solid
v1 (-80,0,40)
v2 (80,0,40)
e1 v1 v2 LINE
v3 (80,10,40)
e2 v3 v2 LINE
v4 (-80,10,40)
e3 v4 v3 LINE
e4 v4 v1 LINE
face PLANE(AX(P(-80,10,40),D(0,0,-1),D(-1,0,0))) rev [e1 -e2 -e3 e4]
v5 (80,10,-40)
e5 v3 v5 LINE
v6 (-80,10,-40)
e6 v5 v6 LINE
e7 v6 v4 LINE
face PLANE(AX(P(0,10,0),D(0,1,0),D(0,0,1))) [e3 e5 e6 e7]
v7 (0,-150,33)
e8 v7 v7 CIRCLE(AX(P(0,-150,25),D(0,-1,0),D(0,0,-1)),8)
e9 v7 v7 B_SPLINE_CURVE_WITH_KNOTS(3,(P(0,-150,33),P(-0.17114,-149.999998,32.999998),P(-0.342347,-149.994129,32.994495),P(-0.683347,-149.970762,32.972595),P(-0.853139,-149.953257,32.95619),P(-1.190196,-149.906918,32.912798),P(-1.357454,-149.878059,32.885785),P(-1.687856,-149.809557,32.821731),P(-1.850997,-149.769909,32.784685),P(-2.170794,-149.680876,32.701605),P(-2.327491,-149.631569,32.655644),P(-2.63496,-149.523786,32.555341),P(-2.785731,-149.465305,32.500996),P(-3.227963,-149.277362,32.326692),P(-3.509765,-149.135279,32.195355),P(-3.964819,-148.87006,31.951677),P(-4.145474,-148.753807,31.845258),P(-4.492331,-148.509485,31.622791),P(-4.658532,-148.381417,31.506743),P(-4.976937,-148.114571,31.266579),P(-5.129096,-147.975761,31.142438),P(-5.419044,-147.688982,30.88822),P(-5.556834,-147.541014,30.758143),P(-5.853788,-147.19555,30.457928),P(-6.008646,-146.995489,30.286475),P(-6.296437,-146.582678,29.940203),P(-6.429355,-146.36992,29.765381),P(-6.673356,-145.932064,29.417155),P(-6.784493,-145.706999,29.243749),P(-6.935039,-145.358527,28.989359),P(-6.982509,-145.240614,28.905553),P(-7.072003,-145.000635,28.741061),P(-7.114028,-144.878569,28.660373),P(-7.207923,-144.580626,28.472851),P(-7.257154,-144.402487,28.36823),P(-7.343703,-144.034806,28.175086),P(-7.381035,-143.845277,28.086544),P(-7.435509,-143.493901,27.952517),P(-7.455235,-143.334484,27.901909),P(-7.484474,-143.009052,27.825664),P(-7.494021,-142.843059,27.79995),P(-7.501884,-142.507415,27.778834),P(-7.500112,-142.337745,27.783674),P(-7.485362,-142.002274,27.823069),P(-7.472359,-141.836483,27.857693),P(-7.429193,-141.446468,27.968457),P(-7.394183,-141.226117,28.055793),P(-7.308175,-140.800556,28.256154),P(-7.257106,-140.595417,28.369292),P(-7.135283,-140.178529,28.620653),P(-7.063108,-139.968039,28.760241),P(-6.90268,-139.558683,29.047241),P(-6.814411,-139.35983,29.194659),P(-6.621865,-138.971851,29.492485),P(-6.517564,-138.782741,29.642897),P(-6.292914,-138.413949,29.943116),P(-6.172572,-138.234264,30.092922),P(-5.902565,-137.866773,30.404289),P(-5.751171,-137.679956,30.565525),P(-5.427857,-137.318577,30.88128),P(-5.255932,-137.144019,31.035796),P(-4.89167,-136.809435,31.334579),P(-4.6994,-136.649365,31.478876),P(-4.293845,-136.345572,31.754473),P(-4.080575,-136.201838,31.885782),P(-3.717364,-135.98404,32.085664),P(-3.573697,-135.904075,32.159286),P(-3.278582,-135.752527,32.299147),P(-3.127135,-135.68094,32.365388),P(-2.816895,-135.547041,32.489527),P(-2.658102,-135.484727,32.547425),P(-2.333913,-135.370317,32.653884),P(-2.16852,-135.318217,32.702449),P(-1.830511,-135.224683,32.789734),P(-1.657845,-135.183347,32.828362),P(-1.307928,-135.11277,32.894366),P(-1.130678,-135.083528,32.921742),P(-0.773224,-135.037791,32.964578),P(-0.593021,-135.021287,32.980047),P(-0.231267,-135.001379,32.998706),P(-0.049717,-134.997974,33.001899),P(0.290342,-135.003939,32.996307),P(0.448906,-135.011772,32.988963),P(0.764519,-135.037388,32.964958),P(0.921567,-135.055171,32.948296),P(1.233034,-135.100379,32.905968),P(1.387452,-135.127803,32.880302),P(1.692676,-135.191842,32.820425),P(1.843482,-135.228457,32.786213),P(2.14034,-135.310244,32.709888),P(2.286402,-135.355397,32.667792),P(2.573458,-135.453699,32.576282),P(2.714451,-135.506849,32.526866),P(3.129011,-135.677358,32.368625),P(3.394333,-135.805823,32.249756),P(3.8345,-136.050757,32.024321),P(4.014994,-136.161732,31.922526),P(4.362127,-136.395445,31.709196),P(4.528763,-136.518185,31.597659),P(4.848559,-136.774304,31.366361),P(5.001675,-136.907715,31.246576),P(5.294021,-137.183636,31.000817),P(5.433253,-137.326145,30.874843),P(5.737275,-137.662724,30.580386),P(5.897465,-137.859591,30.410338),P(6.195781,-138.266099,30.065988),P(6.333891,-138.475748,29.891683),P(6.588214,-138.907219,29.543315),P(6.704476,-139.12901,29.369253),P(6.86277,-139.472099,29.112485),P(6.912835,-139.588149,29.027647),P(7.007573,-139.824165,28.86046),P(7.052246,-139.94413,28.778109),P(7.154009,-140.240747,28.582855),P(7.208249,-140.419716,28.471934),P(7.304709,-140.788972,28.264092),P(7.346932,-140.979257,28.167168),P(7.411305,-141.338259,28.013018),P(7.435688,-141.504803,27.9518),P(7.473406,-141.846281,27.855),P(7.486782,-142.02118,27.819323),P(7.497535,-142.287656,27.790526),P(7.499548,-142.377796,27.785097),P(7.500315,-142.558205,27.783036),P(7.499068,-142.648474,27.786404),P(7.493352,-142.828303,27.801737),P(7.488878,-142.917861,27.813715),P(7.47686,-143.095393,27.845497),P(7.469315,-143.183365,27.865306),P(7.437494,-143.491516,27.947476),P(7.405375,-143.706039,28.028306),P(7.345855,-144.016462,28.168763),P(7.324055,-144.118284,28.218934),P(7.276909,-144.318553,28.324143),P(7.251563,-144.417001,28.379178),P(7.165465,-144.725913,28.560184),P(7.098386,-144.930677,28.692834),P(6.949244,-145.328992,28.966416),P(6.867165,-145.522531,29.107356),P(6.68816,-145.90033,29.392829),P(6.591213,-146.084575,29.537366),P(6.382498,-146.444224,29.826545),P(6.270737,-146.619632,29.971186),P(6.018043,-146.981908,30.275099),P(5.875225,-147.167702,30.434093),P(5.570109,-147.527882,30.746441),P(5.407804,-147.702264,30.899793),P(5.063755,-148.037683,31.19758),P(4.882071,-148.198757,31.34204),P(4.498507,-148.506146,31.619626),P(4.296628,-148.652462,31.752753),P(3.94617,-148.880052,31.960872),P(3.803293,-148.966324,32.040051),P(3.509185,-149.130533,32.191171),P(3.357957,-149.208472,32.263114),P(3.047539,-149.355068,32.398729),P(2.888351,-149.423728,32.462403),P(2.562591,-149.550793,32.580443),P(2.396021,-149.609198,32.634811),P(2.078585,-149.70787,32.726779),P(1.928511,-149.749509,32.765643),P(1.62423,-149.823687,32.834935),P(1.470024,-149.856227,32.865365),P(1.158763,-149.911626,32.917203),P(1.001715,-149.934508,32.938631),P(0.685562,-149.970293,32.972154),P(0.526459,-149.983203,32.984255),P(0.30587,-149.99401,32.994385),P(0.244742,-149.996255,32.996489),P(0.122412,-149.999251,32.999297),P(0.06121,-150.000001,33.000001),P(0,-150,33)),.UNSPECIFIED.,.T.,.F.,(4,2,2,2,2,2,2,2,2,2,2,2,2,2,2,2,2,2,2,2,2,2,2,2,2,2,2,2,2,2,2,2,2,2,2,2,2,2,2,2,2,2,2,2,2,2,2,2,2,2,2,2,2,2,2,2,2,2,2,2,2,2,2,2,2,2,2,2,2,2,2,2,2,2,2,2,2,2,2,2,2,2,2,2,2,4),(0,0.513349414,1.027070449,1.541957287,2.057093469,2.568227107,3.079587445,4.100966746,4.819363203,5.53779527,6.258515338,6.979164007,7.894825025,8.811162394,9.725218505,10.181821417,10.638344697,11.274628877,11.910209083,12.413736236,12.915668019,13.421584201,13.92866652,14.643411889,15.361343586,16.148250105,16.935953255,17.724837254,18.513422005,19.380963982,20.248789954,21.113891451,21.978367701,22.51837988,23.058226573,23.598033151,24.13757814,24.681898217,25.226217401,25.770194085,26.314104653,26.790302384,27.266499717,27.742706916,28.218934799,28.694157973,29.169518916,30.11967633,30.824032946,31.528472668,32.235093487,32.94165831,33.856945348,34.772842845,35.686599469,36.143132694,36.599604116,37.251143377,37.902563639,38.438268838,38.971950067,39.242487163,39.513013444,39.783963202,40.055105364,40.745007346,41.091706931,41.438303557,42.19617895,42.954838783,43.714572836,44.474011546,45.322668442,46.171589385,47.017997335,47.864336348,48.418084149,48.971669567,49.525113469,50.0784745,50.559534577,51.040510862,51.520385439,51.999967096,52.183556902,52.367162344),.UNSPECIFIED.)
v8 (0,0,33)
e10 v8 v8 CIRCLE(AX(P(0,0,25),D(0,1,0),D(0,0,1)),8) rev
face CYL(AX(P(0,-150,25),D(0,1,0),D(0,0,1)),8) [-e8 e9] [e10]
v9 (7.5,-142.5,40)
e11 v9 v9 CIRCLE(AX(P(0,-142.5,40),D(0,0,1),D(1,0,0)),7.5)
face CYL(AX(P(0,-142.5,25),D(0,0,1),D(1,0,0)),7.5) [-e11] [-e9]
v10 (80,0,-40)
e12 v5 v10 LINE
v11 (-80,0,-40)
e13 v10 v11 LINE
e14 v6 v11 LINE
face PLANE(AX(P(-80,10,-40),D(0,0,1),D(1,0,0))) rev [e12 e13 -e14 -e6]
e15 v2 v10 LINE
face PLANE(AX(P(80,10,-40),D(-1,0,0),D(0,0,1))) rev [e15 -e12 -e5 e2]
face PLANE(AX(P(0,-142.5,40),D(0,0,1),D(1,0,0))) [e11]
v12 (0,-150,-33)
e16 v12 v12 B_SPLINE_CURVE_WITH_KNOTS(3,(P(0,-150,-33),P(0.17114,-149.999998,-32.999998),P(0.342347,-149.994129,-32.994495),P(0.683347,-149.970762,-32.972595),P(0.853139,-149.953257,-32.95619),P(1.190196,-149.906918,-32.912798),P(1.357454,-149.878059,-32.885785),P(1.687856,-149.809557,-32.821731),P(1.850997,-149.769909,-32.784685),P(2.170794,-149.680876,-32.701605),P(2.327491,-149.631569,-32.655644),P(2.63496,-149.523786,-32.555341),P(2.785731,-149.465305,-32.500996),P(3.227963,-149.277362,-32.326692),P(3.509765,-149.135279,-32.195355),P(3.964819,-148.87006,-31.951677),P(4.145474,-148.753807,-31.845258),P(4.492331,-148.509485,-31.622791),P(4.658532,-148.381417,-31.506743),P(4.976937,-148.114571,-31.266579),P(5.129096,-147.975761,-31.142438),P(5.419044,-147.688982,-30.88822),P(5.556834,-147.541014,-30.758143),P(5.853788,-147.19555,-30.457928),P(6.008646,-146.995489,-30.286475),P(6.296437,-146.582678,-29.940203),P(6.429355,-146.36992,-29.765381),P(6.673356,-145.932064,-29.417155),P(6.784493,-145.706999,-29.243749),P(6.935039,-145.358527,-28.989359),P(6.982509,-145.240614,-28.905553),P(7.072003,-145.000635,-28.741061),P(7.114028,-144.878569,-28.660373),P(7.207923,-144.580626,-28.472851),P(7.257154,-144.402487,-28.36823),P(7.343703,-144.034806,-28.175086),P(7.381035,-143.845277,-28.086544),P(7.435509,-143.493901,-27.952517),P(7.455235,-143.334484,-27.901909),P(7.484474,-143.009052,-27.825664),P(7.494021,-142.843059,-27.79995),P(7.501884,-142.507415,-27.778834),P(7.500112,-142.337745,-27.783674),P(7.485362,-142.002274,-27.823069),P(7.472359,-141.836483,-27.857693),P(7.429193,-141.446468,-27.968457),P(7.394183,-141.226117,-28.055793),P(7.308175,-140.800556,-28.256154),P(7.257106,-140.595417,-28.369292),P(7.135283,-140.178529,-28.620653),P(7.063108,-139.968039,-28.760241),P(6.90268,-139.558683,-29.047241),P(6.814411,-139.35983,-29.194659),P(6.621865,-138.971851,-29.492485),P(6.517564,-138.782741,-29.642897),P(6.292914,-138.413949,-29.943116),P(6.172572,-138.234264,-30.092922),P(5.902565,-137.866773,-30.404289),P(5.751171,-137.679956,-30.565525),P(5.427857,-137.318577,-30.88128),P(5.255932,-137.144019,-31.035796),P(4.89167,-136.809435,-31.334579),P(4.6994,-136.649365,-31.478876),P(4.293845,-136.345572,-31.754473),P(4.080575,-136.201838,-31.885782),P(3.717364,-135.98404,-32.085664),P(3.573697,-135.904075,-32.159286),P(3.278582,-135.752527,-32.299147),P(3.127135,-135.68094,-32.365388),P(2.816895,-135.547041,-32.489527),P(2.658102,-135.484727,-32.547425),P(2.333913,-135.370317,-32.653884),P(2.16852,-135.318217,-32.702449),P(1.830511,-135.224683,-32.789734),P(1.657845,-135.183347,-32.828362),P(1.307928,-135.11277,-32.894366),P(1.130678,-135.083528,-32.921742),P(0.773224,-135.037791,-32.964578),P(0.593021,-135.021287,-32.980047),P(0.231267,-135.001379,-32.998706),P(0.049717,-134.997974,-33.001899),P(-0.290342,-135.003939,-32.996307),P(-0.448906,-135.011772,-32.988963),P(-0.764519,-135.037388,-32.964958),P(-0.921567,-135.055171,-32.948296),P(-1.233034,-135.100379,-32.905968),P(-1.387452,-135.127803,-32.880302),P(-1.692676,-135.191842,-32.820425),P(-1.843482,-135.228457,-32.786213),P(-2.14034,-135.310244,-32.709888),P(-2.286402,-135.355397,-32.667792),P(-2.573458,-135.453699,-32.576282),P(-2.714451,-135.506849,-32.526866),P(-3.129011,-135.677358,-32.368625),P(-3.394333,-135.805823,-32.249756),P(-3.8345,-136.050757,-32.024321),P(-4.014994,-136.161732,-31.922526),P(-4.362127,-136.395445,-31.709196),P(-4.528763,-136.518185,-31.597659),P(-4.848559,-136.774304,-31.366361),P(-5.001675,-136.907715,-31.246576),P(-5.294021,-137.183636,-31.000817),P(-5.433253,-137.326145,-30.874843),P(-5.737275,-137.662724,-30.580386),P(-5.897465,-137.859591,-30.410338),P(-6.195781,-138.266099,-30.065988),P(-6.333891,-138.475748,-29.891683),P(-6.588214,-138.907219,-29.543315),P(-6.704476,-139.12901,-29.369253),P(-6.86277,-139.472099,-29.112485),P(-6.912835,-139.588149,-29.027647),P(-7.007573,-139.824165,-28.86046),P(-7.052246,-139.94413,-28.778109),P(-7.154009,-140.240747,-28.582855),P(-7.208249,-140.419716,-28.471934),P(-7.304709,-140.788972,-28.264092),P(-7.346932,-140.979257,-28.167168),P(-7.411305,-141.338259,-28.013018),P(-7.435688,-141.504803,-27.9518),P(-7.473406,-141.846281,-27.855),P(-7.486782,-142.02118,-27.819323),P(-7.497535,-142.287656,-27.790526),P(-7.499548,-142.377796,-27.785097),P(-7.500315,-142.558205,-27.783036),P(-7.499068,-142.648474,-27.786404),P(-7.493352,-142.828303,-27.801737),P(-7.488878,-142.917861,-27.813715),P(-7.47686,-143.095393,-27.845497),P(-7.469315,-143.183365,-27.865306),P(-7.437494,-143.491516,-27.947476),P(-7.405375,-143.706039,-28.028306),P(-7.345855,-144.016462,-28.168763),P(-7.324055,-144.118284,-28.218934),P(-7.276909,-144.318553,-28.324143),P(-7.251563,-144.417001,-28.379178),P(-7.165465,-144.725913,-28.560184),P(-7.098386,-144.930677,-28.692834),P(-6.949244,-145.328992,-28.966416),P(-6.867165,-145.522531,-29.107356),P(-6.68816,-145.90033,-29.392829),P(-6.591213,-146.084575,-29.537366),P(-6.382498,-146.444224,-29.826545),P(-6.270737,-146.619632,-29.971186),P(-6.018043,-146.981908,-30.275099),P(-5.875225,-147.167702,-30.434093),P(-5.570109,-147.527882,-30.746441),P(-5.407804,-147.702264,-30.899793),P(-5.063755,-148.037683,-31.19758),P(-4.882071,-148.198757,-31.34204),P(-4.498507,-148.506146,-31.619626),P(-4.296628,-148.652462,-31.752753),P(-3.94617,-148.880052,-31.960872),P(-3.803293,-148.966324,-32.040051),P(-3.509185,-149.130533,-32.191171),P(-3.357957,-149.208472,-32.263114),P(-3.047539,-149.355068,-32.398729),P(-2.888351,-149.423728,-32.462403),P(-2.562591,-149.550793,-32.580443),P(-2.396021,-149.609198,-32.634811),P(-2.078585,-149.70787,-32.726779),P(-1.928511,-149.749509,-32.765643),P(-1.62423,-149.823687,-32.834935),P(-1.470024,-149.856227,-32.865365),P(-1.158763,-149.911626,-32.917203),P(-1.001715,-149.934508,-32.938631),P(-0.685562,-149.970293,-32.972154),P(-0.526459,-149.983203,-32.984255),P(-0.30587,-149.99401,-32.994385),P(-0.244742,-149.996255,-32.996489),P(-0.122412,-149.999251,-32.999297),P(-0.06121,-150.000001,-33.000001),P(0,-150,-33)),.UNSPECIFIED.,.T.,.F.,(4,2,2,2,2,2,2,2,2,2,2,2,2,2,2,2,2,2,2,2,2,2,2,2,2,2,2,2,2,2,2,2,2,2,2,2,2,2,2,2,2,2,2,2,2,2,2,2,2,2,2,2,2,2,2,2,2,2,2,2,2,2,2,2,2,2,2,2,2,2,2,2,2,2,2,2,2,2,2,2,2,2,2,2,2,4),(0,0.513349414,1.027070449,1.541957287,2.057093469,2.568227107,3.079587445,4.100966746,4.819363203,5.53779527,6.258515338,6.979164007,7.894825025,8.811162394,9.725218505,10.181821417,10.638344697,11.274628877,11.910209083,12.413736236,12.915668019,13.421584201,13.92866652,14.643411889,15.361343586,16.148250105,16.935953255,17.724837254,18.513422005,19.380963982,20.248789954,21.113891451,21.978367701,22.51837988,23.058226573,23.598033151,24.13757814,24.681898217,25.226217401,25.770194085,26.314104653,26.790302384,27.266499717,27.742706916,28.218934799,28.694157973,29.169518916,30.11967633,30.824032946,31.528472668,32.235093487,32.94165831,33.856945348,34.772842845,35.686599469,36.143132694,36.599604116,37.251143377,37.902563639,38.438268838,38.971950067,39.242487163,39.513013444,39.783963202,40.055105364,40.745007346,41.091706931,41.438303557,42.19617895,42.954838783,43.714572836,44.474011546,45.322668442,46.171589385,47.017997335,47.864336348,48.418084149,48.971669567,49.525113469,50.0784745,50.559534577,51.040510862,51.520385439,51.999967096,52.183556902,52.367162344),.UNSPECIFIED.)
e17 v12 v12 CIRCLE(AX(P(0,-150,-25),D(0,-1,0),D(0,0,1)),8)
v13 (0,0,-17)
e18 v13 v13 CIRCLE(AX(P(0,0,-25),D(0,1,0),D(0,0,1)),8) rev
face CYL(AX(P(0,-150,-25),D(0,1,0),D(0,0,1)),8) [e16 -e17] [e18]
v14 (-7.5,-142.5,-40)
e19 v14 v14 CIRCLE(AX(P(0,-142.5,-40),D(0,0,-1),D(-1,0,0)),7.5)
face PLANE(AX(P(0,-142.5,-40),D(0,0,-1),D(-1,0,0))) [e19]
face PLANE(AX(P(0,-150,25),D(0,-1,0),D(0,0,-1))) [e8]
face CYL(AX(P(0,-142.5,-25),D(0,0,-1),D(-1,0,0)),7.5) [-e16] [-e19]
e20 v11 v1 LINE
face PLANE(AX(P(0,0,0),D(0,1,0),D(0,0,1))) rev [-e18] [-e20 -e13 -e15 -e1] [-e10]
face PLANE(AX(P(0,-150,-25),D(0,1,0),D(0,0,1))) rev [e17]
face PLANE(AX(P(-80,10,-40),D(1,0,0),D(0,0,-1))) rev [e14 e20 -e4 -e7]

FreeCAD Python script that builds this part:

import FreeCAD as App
import Part
import Sketcher
from FreeCAD import Vector
Q = App.Units.Quantity

doc = App.newDocument("Part")
body = doc.addObject("PartDesign::Body", "Body")

sketch1 = body.newObject("Sketcher::SketchObject", "Sketch")
sketch1.AttachmentSupport = (doc.getObject("XZ_Plane"), [""])
sketch1.MapMode = "FlatFace"
sketch1.addGeometry(Part.LineSegment(Vector(-80, -40, 0), Vector(-80, 40, 0)), False)
sketch1.addGeometry(Part.LineSegment(Vector(-80, 40, 0), Vector(80, 40, 0)), False)
sketch1.addGeometry(Part.LineSegment(Vector(80, 40, 0), Vector(80, -40, 0)), False)
sketch1.addGeometry(Part.LineSegment(Vector(80, -40, 0), Vector(-80, -40, 0)), False)
sketch1.addConstraint(Sketcher.Constraint("Coincident", 0, 2, 1, 1))
sketch1.addConstraint(Sketcher.Constraint("Coincident", 1, 2, 2, 1))
sketch1.addConstraint(Sketcher.Constraint("Coincident", 2, 2, 3, 1))
sketch1.addConstraint(Sketcher.Constraint("Coincident", 3, 2, 0, 1))
sketch1.addConstraint(Sketcher.Constraint("Vertical", 0))
sketch1.addConstraint(Sketcher.Constraint("Horizontal", 1))
sketch1.addConstraint(Sketcher.Constraint("Vertical", 2))
sketch1.addConstraint(Sketcher.Constraint("Horizontal", 3))
sketch1.addConstraint(Sketcher.Constraint("Symmetric", 0, 2, 2, 2, -1, 1))
sketch1.addConstraint(Sketcher.Constraint("DistanceX", 1, 1, 1, 2, Q("160 mm")))
sketch1.addConstraint(Sketcher.Constraint("DistanceY", 0, 1, 0, 2, Q("80 mm")))
pad1 = body.newObject("PartDesign::Pad", "Pad")
pad1.Profile = sketch1
pad1.Length = 10
pad1.Reversed = True

sketch2 = body.newObject("Sketcher::SketchObject", "Sketch001")
sketch2.AttachmentSupport = (doc.getObject("XZ_Plane"), [""])
sketch2.MapMode = "FlatFace"
sketch2.addGeometry(Part.Circle(Vector(0, 25, 0), Vector(0, 0, 1), 8), False)
sketch2.addGeometry(Part.Circle(Vector(0, -25, 0), Vector(0, 0, 1), 8), False)
sketch2.addConstraint(Sketcher.Constraint("Equal", 0, 1))
sketch2.addConstraint(Sketcher.Constraint("Symmetric", 0, 3, 1, 3, -1, 1))
sketch2.addConstraint(Sketcher.Constraint("PointOnObject", 0, 3, -2))
sketch2.addConstraint(Sketcher.Constraint("Diameter", 0, Q("16 mm")))
sketch2.addConstraint(Sketcher.Constraint("DistanceY", -1, 1, 0, 3, Q("25 mm")))
pad2 = body.newObject("PartDesign::Pad", "Pad001")
pad2.Profile = sketch2
pad2.Length = 150

sketch3 = body.newObject("Sketcher::SketchObject", "Sketch002")
sketch3.AttachmentSupport = (doc.getObject("XY_Plane"), [""])
sketch3.MapMode = "FlatFace"
sketch3.AttachmentOffset = App.Placement(Vector(0, 0, -40), App.Rotation())
sketch3.addGeometry(Part.Circle(Vector(0, -142, 0), Vector(0, 0, 1), 8), False)
sketch3.addConstraint(Sketcher.Constraint("PointOnObject", 0, 3, -2))
sketch3.addConstraint(Sketcher.Constraint("Diameter", 0, Q("15 mm")))
sketch3.addConstraint(Sketcher.Constraint("DistanceY", 0, 3, -1, 1, Q("142.5 mm")))
pad3 = body.newObject("PartDesign::Pad", "Pad002")
pad3.Profile = sketch3
pad3.Length = 15

sketch4 = body.newObject("Sketcher::SketchObject", "Sketch003")
sketch4.AttachmentSupport = (doc.getObject("XY_Plane"), [""])
sketch4.MapMode = "FlatFace"
sketch4.AttachmentOffset = App.Placement(Vector(0, 0, 25), App.Rotation())
sketch4.addGeometry(Part.Circle(Vector(0, -142, 0), Vector(0, 0, 1), 8), False)
sketch4.addConstraint(Sketcher.Constraint("PointOnObject", 0, 3, -2))
sketch4.addConstraint(Sketcher.Constraint("Diameter", 0, Q("15 mm")))
sketch4.addConstraint(Sketcher.Constraint("DistanceY", 0, 3, -1, 1, Q("142.5 mm")))
pad4 = body.newObject("PartDesign::Pad", "Pad003")
pad4.Profile = sketch4
pad4.Length = 15

doc.recompute()
